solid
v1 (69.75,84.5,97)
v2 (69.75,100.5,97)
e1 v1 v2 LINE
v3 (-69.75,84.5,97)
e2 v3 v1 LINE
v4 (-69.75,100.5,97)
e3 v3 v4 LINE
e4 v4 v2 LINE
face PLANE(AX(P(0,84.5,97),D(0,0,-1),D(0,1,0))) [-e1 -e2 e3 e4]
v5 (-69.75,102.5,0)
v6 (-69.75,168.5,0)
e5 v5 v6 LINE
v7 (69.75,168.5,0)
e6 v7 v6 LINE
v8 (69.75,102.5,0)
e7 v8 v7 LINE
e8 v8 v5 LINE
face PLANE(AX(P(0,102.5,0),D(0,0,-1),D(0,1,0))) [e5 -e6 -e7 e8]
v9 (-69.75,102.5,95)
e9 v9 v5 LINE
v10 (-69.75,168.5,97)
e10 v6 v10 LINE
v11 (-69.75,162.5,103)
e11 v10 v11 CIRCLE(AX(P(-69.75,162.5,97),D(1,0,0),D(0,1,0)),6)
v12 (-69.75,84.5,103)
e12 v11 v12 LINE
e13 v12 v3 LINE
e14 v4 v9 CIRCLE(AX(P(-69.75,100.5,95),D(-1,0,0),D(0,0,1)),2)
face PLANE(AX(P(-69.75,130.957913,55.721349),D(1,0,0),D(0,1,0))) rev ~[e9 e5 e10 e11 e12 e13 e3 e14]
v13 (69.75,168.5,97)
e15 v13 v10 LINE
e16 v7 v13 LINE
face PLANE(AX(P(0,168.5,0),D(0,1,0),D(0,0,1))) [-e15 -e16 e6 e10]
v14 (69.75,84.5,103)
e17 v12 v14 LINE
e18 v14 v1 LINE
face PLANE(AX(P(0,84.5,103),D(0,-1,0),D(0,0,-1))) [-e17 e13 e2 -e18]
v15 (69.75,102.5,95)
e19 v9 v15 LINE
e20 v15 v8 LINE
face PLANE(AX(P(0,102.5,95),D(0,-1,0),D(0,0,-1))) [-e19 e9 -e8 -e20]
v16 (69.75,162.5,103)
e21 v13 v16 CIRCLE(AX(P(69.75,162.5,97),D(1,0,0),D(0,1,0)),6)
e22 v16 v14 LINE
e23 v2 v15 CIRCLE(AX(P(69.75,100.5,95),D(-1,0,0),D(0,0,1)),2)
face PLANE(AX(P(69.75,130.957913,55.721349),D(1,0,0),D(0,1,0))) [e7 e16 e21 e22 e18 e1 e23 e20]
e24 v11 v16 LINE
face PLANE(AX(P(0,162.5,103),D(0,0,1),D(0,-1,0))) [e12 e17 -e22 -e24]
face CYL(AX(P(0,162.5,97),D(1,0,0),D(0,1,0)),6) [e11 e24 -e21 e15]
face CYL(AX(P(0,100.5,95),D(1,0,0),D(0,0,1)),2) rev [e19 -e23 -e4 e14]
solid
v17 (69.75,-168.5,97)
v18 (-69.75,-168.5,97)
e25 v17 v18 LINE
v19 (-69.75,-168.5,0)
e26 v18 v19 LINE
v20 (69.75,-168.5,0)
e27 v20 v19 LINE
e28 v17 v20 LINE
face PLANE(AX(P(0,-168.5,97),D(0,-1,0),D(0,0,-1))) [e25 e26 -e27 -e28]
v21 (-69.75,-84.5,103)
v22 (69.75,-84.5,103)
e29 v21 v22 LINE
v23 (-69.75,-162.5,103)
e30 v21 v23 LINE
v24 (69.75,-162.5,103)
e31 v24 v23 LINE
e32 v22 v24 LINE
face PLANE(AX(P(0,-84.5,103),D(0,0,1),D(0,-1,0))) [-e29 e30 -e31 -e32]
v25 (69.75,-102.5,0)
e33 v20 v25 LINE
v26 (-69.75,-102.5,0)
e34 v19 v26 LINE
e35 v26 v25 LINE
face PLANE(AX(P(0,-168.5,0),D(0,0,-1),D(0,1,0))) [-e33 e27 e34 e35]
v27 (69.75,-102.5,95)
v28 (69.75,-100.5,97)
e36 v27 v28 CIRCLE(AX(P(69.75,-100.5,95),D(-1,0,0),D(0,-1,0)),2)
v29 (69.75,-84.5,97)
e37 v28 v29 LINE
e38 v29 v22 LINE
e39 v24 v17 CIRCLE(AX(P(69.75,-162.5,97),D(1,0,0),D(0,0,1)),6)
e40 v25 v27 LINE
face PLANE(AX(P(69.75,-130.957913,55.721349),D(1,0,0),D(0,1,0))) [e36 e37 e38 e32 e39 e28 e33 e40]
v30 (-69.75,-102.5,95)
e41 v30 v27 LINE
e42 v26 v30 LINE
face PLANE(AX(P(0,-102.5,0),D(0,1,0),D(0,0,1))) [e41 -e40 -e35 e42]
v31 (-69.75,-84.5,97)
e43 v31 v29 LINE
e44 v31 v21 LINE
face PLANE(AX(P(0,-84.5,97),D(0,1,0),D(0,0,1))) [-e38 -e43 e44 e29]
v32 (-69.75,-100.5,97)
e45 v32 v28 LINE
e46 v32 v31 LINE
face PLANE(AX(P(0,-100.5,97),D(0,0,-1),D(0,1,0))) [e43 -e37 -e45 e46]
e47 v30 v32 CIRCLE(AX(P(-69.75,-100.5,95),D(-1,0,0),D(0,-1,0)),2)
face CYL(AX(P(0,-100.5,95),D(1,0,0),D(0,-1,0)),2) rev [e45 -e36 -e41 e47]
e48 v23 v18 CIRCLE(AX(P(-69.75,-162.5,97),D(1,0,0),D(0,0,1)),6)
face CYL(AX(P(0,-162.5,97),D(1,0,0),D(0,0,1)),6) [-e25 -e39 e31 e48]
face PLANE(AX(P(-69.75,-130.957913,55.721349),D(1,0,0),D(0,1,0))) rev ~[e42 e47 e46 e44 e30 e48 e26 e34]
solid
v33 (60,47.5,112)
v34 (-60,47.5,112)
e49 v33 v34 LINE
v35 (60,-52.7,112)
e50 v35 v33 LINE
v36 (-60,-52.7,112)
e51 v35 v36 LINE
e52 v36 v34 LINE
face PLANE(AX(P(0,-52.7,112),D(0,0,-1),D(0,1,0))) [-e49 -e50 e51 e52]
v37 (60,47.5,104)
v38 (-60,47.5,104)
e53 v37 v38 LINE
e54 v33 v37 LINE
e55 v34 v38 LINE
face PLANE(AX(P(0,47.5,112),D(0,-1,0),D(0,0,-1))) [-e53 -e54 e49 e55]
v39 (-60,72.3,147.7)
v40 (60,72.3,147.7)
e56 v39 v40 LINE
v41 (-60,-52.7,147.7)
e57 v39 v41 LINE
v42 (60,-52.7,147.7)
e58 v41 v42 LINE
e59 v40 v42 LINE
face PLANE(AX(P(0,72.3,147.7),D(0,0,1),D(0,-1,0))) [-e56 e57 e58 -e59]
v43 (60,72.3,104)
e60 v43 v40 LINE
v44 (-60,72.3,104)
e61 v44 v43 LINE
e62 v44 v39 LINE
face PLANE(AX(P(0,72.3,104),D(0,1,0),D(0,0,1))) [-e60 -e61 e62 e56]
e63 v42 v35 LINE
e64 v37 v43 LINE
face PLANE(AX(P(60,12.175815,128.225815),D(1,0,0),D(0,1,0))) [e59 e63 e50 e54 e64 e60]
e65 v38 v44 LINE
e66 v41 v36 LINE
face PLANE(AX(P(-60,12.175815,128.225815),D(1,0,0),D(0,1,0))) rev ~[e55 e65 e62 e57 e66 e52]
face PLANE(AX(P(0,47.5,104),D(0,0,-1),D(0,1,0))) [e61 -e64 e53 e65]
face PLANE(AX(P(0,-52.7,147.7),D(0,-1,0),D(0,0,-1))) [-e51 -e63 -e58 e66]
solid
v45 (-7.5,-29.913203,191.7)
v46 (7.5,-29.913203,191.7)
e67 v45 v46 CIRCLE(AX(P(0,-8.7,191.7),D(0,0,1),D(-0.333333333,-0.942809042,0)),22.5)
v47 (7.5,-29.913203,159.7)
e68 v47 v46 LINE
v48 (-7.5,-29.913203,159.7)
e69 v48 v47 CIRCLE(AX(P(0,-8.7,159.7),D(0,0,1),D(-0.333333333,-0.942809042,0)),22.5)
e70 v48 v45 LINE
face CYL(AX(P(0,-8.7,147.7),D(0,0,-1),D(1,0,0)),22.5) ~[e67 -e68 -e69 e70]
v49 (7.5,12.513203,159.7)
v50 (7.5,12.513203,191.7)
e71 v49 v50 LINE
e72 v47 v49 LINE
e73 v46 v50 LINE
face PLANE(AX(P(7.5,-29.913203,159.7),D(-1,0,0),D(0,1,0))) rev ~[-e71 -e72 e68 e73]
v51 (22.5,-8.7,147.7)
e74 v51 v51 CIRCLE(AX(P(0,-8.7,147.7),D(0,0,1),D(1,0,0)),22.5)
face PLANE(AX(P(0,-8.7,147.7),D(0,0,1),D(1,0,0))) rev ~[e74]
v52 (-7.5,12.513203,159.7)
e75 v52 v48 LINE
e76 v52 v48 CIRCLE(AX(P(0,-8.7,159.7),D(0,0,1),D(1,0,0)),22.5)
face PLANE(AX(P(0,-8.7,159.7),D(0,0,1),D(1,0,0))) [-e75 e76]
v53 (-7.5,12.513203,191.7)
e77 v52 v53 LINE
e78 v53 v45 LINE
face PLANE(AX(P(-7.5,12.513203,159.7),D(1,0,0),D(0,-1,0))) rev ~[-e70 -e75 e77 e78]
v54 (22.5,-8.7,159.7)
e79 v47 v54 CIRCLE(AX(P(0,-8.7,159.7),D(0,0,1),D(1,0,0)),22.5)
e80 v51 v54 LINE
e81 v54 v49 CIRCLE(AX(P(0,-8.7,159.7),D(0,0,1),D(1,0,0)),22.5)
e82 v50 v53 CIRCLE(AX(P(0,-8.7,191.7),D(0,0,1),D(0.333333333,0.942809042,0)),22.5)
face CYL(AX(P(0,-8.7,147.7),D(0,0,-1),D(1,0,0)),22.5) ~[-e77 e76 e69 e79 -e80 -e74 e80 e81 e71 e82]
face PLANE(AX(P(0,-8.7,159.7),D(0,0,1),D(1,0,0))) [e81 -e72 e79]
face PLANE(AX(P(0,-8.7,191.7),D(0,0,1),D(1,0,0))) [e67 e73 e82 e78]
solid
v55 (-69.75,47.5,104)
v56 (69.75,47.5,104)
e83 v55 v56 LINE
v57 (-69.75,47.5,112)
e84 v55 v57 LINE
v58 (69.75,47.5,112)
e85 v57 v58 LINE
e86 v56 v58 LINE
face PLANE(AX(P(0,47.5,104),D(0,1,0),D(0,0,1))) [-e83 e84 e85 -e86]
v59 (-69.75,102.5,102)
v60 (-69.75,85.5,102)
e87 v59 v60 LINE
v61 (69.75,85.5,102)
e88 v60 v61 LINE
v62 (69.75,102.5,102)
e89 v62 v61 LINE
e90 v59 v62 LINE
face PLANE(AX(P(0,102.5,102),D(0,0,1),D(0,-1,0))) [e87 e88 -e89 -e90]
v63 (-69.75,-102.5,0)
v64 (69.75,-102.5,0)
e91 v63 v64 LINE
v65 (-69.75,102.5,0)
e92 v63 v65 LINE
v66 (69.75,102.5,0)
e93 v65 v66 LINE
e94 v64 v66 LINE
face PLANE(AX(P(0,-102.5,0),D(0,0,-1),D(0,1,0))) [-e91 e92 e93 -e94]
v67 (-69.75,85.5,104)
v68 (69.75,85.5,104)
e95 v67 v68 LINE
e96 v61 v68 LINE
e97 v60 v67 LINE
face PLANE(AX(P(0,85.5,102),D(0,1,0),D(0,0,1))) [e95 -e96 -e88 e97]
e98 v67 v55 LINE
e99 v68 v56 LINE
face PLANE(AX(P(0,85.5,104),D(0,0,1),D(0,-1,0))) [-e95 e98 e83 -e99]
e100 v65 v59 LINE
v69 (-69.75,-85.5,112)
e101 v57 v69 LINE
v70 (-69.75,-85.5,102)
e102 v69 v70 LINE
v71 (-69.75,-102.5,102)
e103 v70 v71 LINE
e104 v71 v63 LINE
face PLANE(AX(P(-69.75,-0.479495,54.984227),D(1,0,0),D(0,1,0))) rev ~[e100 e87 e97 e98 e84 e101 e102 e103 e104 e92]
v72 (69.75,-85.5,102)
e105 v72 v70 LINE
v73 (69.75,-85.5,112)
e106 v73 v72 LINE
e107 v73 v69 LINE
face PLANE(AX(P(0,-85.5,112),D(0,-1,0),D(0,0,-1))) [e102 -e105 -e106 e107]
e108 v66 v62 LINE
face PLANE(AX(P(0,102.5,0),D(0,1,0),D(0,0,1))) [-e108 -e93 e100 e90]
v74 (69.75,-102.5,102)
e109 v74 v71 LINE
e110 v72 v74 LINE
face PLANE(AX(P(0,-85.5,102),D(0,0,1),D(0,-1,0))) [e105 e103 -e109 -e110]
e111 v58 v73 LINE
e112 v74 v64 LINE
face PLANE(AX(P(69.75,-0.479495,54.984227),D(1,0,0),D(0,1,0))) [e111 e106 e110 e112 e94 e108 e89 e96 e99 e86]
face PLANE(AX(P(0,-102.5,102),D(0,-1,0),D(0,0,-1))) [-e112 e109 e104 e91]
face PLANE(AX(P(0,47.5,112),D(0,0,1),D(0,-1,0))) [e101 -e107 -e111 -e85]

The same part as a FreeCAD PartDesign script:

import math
import FreeCAD as App
import Part
import Sketcher
from FreeCAD import Vector

doc = App.newDocument("Part")
body = doc.addObject("PartDesign::Body", "Body")

# Sketch on YZ plane
sketch1 = body.newObject("Sketcher::SketchObject", "Sketch")
sketch1.AttachmentSupport = (doc.getObject("YZ_Plane"), [""])
sketch1.MapMode = "FlatFace"
sketch1.addGeometry(Part.LineSegment(Vector(-102.5, 102, 0), Vector(-102.5, 0, 0)), False)
sketch1.addGeometry(Part.LineSegment(Vector(-102.5, 0, 0), Vector(102.5, 0, 0)), False)
sketch1.addGeometry(Part.LineSegment(Vector(102.5, 0, 0), Vector(102.5, 102, 0)), False)
sketch1.addGeometry(Part.LineSegment(Vector(102.5, 102, 0), Vector(85.5, 102, 0)), False)
sketch1.addGeometry(Part.LineSegment(Vector(85.5, 102, 0), Vector(85.5, 104, 0)), False)
sketch1.addGeometry(Part.LineSegment(Vector(85.5, 104, 0), Vector(47.5, 104, 0)), False)
sketch1.addGeometry(Part.LineSegment(Vector(47.5, 104, 0), Vector(47.5, 112, 0)), False)
sketch1.addGeometry(Part.LineSegment(Vector(47.5, 112, 0), Vector(-85.5, 112, 0)), False)
sketch1.addGeometry(Part.LineSegment(Vector(-85.5, 112, 0), Vector(-85.5, 102, 0)), False)
sketch1.addGeometry(Part.LineSegment(Vector(-85.5, 102, 0), Vector(-102.5, 102, 0)), False)
sketch1.addConstraint(Sketcher.Constraint("Coincident", 0, 2, 1, 1))
sketch1.addConstraint(Sketcher.Constraint("Coincident", 1, 2, 2, 1))
sketch1.addConstraint(Sketcher.Constraint("Coincident", 2, 2, 3, 1))
sketch1.addConstraint(Sketcher.Constraint("Coincident", 3, 2, 4, 1))
sketch1.addConstraint(Sketcher.Constraint("Coincident", 4, 2, 5, 1))
sketch1.addConstraint(Sketcher.Constraint("Coincident", 5, 2, 6, 1))
sketch1.addConstraint(Sketcher.Constraint("Coincident", 6, 2, 7, 1))
sketch1.addConstraint(Sketcher.Constraint("Coincident", 7, 2, 8, 1))
sketch1.addConstraint(Sketcher.Constraint("Coincident", 8, 2, 9, 1))
sketch1.addConstraint(Sketcher.Constraint("Coincident", 9, 2, 0, 1))
sketch1.addConstraint(Sketcher.Constraint("Vertical", 0))
sketch1.addConstraint(Sketcher.Constraint("Horizontal", 1))
sketch1.addConstraint(Sketcher.Constraint("Vertical", 2))
sketch1.addConstraint(Sketcher.Constraint("Horizontal", 3))
sketch1.addConstraint(Sketcher.Constraint("Vertical", 4))
sketch1.addConstraint(Sketcher.Constraint("Horizontal", 5))
sketch1.addConstraint(Sketcher.Constraint("Vertical", 6))
sketch1.addConstraint(Sketcher.Constraint("Horizontal", 7))
sketch1.addConstraint(Sketcher.Constraint("Vertical", 8))
sketch1.addConstraint(Sketcher.Constraint("Horizontal", 9))
sketch1.addConstraint(Sketcher.Constraint("Symmetric", 0, 2, 1, 2, -1, 1))
sketch1.addConstraint(Sketcher.Constraint("Symmetric", 3, 2, 8, 2, -2))
sketch1.addConstraint(Sketcher.Constraint("DistanceX", 1, 1, 1, 2, 205.0))
sketch1.addConstraint(Sketcher.Constraint("DistanceX", 3, 2, 3, 1, 17.0))
sketch1.addConstraint(Sketcher.Constraint("DistanceX", 5, 2, 5, 1, 38.0))
sketch1.addConstraint(Sketcher.Constraint("DistanceY", 0, 2, 0, 1, 102.0))
sketch1.addConstraint(Sketcher.Constraint("DistanceY", 4, 1, 4, 2, 2.0))
sketch1.addConstraint(Sketcher.Constraint("DistanceY", 6, 1, 6, 2, 8.0))
pad1 = body.newObject("PartDesign::Pad", "Pad")
pad1.Profile = sketch1
pad1.Length = 139.5
pad1.Midplane = True
body2 = doc.addObject("PartDesign::Body", "Body001")

# Sketch on YZ plane
sketch2 = body2.newObject("Sketcher::SketchObject", "Sketch001")
sketch2.AttachmentSupport = (doc.getObject("YZ_Plane001"), [""])
sketch2.MapMode = "FlatFace"
sketch2.addGeometry(Part.LineSegment(Vector(48, 104, 0), Vector(72, 104, 0)), False)
sketch2.addGeometry(Part.LineSegment(Vector(72, 104, 0), Vector(72, 148, 0)), False)
sketch2.addGeometry(Part.LineSegment(Vector(72, 148, 0), Vector(-53, 148, 0)), False)
sketch2.addGeometry(Part.LineSegment(Vector(-53, 148, 0), Vector(-53, 112, 0)), False)
sketch2.addGeometry(Part.LineSegment(Vector(-53, 112, 0), Vector(48, 112, 0)), False)
sketch2.addGeometry(Part.LineSegment(Vector(48, 112, 0), Vector(48, 104, 0)), False)
sketch2.addConstraint(Sketcher.Constraint("Coincident", 0, 2, 1, 1))
sketch2.addConstraint(Sketcher.Constraint("Coincident", 1, 2, 2, 1))
sketch2.addConstraint(Sketcher.Constraint("Coincident", 2, 2, 3, 1))
sketch2.addConstraint(Sketcher.Constraint("Coincident", 3, 2, 4, 1))
sketch2.addConstraint(Sketcher.Constraint("Coincident", 4, 2, 5, 1))
sketch2.addConstraint(Sketcher.Constraint("Coincident", 5, 2, 0, 1))
sketch2.addConstraint(Sketcher.Constraint("Horizontal", 0))
sketch2.addConstraint(Sketcher.Constraint("Vertical", 1))
sketch2.addConstraint(Sketcher.Constraint("Horizontal", 2))
sketch2.addConstraint(Sketcher.Constraint("Vertical", 3))
sketch2.addConstraint(Sketcher.Constraint("Horizontal", 4))
sketch2.addConstraint(Sketcher.Constraint("Vertical", 5))
sketch2.addConstraint(Sketcher.Constraint("DistanceX", 2, 2, 2, 1, 125.0))
sketch2.addConstraint(Sketcher.Constraint("DistanceY", 5, 2, 5, 1, 8.0))
sketch2.addConstraint(Sketcher.Constraint("DistanceX", 0, 1, 0, 2, 24.8))
sketch2.addConstraint(Sketcher.Constraint("DistanceY", 1, 1, 1, 2, 43.7))
sketch2.addConstraint(Sketcher.Constraint("DistanceY", -1, 1, 0, 2, 104.0))
sketch2.addConstraint(Sketcher.Constraint("DistanceX", -1, 1, 0, 2, 72.3))
pad2 = body2.newObject("PartDesign::Pad", "Pad001")
pad2.Profile = sketch2
pad2.Length = 120
pad2.Midplane = True
body3 = doc.addObject("PartDesign::Body", "Body002")

# Sketch on XY plane
sketch3 = body3.newObject("Sketcher::SketchObject", "Sketch002")
sketch3.AttachmentSupport = (doc.getObject("XY_Plane002"), [""])
sketch3.MapMode = "FlatFace"
sketch3.AttachmentOffset = App.Placement(Vector(0, 0, 147.7), App.Rotation())
sketch3.addGeometry(Part.Circle(Vector(0, -9, 0), Vector(0, 0, 1), 22), False)
sketch3.addConstraint(Sketcher.Constraint("PointOnObject", 0, 3, -2))
sketch3.addConstraint(Sketcher.Constraint("Diameter", 0, 45.0))
sketch3.addConstraint(Sketcher.Constraint("DistanceY", 0, 3, -1, 1, 8.7))
pad3 = body3.newObject("PartDesign::Pad", "Pad002")
pad3.Profile = sketch3
pad3.Length = 12

# Sketch on XY plane
sketch4 = body3.newObject("Sketcher::SketchObject", "Sketch003")
sketch4.AttachmentSupport = (doc.getObject("XY_Plane002"), [""])
sketch4.MapMode = "FlatFace"
sketch4.AttachmentOffset = App.Placement(Vector(0, 0, 159.7), App.Rotation())
sketch4.addGeometry(Part.LineSegment(Vector(8, -30, 0), Vector(8, 13, 0)), False)
sketch4.addGeometry(Part.ArcOfCircle(Part.Circle(Vector(0, -9, 0), Vector(0, 0, 1), 22), math.radians(71), math.radians(109)), False)
sketch4.addGeometry(Part.LineSegment(Vector(-8, 13, 0), Vector(-8, -30, 0)), False)
sketch4.addGeometry(Part.ArcOfCircle(Part.Circle(Vector(0, -9, 0), Vector(0, 0, 1), 22), math.radians(-109), math.radians(-71)), False)
sketch4.addConstraint(Sketcher.Constraint("Coincident", 0, 2, 1, 1))
sketch4.addConstraint(Sketcher.Constraint("Coincident", 1, 2, 2, 1))
sketch4.addConstraint(Sketcher.Constraint("Coincident", 2, 2, 3, 1))
sketch4.addConstraint(Sketcher.Constraint("Coincident", 3, 2, 0, 1))
sketch4.addConstraint(Sketcher.Constraint("Vertical", 0))
sketch4.addConstraint(Sketcher.Constraint("Vertical", 2))
sketch4.addConstraint(Sketcher.Constraint("Coincident", 3, 3, 1, 3))
sketch4.addConstraint(Sketcher.Constraint("Equal", 1, 3))
sketch4.addConstraint(Sketcher.Constraint("Symmetric", 0, 2, 1, 2, -2))
sketch4.addConstraint(Sketcher.Constraint("Radius", 1, 22.5))
sketch4.addConstraint(Sketcher.Constraint("DistanceX", 1, 2, 0, 2, 15.0))
sketch4.addConstraint(Sketcher.Constraint("DistanceY", 1, 3, -1, 1, 8.7))
pad4 = body3.newObject("PartDesign::Pad", "Pad003")
pad4.Profile = sketch4
pad4.Length = 32
body4 = doc.addObject("PartDesign::Body", "Body003")

# Sketch on YZ plane
sketch5 = body4.newObject("Sketcher::SketchObject", "Sketch004")
sketch5.AttachmentSupport = (doc.getObject("YZ_Plane003"), [""])
sketch5.MapMode = "FlatFace"
sketch5.addGeometry(Part.LineSegment(Vector(-168.5, 0, 0), Vector(-102.5, 0, 0)), False)
sketch5.addGeometry(Part.LineSegment(Vector(-102.5, 0, 0), Vector(-102.5, 95, 0)), False)
sketch5.addGeometry(Part.ArcOfCircle(Part.Circle(Vector(-100.5, 95, 0), Vector(0, 0, 1), 2), math.radians(90), math.radians(180)), False)
sketch5.addGeometry(Part.LineSegment(Vector(-100.5, 97, 0), Vector(-84.5, 97, 0)), False)
sketch5.addGeometry(Part.LineSegment(Vector(-84.5, 97, 0), Vector(-84.5, 103, 0)), False)
sketch5.addGeometry(Part.LineSegment(Vector(-84.5, 103, 0), Vector(-162.5, 103, 0)), False)
sketch5.addGeometry(Part.ArcOfCircle(Part.Circle(Vector(-162.5, 97, 0), Vector(0, 0, 1), 6), math.radians(90), math.radians(180)), False)
sketch5.addGeometry(Part.LineSegment(Vector(-168.5, 97, 0), Vector(-168.5, 0, 0)), False)
sketch5.addConstraint(Sketcher.Constraint("Coincident", 0, 2, 1, 1))
sketch5.addConstraint(Sketcher.Constraint("Tangent", 1, 2, 2, 2))
sketch5.addConstraint(Sketcher.Constraint("Tangent", 2, 1, 3, 1))
sketch5.addConstraint(Sketcher.Constraint("Coincident", 3, 2, 4, 1))
sketch5.addConstraint(Sketcher.Constraint("Coincident", 4, 2, 5, 1))
sketch5.addConstraint(Sketcher.Constraint("Tangent", 5, 2, 6, 1))
sketch5.addConstraint(Sketcher.Constraint("Tangent", 6, 2, 7, 1))
sketch5.addConstraint(Sketcher.Constraint("Coincident", 7, 2, 0, 1))
sketch5.addConstraint(Sketcher.Constraint("Horizontal", 0))
sketch5.addConstraint(Sketcher.Constraint("Vertical", 1))
sketch5.addConstraint(Sketcher.Constraint("Horizontal", 3))
sketch5.addConstraint(Sketcher.Constraint("Vertical", 4))
sketch5.addConstraint(Sketcher.Constraint("Horizontal", 5))
sketch5.addConstraint(Sketcher.Constraint("Vertical", 7))
sketch5.addConstraint(Sketcher.Constraint("PointOnObject", 0, 2, -1))
sketch5.addConstraint(Sketcher.Constraint("Horizontal", 6, 3, 2, 1))
sketch5.addConstraint(Sketcher.Constraint("Radius", 2, 2.0))
sketch5.addConstraint(Sketcher.Constraint("Radius", 6, 6.0))
sketch5.addConstraint(Sketcher.Constraint("DistanceX", 0, 1, 0, 2, 66.0))
sketch5.addConstraint(Sketcher.Constraint("DistanceX", 3, 1, 3, 2, 16.0))
sketch5.addConstraint(Sketcher.Constraint("DistanceY", 1, 1, 1, 2, 95.0))
sketch5.addConstraint(Sketcher.Constraint("DistanceX", 2, 3, -1, 1, 100.5))
pad5 = body4.newObject("PartDesign::Pad", "Pad004")
pad5.Profile = sketch5
pad5.Length = 139.5
pad5.Midplane = True
body5 = doc.addObject("PartDesign::Body", "Body004")

# Sketch on YZ plane
sketch6 = body5.newObject("Sketcher::SketchObject", "Sketch005")
sketch6.AttachmentSupport = (doc.getObject("YZ_Plane004"), [""])
sketch6.MapMode = "FlatFace"
sketch6.addGeometry(Part.ArcOfCircle(Part.Circle(Vector(162.5, 97, 0), Vector(0, 0, 1), 6), math.radians(0), math.radians(90)), False)
sketch6.addGeometry(Part.LineSegment(Vector(162.5, 103, 0), Vector(84.5, 103, 0)), False)
sketch6.addGeometry(Part.LineSegment(Vector(84.5, 103, 0), Vector(84.5, 97, 0)), False)
sketch6.addGeometry(Part.LineSegment(Vector(84.5, 97, 0), Vector(100.5, 97, 0)), False)
sketch6.addGeometry(Part.ArcOfCircle(Part.Circle(Vector(100.5, 95, 0), Vector(0, 0, 1), 2), math.radians(0), math.radians(90)), False)
sketch6.addGeometry(Part.LineSegment(Vector(102.5, 95, 0), Vector(102.5, 0, 0)), False)
sketch6.addGeometry(Part.LineSegment(Vector(102.5, 0, 0), Vector(168.5, 0, 0)), False)
sketch6.addGeometry(Part.LineSegment(Vector(168.5, 0, 0), Vector(168.5, 97, 0)), False)
sketch6.addConstraint(Sketcher.Constraint("Tangent", 0, 2, 1, 1))
sketch6.addConstraint(Sketcher.Constraint("Coincident", 1, 2, 2, 1))
sketch6.addConstraint(Sketcher.Constraint("Coincident", 2, 2, 3, 1))
sketch6.addConstraint(Sketcher.Constraint("Tangent", 3, 2, 4, 2))
sketch6.addConstraint(Sketcher.Constraint("Tangent", 4, 1, 5, 1))
sketch6.addConstraint(Sketcher.Constraint("Coincident", 5, 2, 6, 1))
sketch6.addConstraint(Sketcher.Constraint("Coincident", 6, 2, 7, 1))
sketch6.addConstraint(Sketcher.Constraint("Tangent", 7, 2, 0, 1))
sketch6.addConstraint(Sketcher.Constraint("Horizontal", 1))
sketch6.addConstraint(Sketcher.Constraint("Vertical", 2))
sketch6.addConstraint(Sketcher.Constraint("Horizontal", 3))
sketch6.addConstraint(Sketcher.Constraint("Vertical", 5))
sketch6.addConstraint(Sketcher.Constraint("Horizontal", 6))
sketch6.addConstraint(Sketcher.Constraint("Vertical", 7))
sketch6.addConstraint(Sketcher.Constraint("PointOnObject", 5, 2, -1))
sketch6.addConstraint(Sketcher.Constraint("Horizontal", 0, 3, 2, 2))
sketch6.addConstraint(Sketcher.Constraint("Radius", 0, 6.0))
sketch6.addConstraint(Sketcher.Constraint("Radius", 4, 2.0))
sketch6.addConstraint(Sketcher.Constraint("DistanceX", 1, 2, 1, 1, 78.0))
sketch6.addConstraint(Sketcher.Constraint("DistanceX", 3, 1, 3, 2, 16.0))
sketch6.addConstraint(Sketcher.Constraint("DistanceY", 5, 2, 5, 1, 95.0))
sketch6.addConstraint(Sketcher.Constraint("DistanceX", -1, 1, 0, 3, 162.5))
pad6 = body5.newObject("PartDesign::Pad", "Pad005")
pad6.Profile = sketch6
pad6.Length = 139.5
pad6.Midplane = True

doc.recompute()
